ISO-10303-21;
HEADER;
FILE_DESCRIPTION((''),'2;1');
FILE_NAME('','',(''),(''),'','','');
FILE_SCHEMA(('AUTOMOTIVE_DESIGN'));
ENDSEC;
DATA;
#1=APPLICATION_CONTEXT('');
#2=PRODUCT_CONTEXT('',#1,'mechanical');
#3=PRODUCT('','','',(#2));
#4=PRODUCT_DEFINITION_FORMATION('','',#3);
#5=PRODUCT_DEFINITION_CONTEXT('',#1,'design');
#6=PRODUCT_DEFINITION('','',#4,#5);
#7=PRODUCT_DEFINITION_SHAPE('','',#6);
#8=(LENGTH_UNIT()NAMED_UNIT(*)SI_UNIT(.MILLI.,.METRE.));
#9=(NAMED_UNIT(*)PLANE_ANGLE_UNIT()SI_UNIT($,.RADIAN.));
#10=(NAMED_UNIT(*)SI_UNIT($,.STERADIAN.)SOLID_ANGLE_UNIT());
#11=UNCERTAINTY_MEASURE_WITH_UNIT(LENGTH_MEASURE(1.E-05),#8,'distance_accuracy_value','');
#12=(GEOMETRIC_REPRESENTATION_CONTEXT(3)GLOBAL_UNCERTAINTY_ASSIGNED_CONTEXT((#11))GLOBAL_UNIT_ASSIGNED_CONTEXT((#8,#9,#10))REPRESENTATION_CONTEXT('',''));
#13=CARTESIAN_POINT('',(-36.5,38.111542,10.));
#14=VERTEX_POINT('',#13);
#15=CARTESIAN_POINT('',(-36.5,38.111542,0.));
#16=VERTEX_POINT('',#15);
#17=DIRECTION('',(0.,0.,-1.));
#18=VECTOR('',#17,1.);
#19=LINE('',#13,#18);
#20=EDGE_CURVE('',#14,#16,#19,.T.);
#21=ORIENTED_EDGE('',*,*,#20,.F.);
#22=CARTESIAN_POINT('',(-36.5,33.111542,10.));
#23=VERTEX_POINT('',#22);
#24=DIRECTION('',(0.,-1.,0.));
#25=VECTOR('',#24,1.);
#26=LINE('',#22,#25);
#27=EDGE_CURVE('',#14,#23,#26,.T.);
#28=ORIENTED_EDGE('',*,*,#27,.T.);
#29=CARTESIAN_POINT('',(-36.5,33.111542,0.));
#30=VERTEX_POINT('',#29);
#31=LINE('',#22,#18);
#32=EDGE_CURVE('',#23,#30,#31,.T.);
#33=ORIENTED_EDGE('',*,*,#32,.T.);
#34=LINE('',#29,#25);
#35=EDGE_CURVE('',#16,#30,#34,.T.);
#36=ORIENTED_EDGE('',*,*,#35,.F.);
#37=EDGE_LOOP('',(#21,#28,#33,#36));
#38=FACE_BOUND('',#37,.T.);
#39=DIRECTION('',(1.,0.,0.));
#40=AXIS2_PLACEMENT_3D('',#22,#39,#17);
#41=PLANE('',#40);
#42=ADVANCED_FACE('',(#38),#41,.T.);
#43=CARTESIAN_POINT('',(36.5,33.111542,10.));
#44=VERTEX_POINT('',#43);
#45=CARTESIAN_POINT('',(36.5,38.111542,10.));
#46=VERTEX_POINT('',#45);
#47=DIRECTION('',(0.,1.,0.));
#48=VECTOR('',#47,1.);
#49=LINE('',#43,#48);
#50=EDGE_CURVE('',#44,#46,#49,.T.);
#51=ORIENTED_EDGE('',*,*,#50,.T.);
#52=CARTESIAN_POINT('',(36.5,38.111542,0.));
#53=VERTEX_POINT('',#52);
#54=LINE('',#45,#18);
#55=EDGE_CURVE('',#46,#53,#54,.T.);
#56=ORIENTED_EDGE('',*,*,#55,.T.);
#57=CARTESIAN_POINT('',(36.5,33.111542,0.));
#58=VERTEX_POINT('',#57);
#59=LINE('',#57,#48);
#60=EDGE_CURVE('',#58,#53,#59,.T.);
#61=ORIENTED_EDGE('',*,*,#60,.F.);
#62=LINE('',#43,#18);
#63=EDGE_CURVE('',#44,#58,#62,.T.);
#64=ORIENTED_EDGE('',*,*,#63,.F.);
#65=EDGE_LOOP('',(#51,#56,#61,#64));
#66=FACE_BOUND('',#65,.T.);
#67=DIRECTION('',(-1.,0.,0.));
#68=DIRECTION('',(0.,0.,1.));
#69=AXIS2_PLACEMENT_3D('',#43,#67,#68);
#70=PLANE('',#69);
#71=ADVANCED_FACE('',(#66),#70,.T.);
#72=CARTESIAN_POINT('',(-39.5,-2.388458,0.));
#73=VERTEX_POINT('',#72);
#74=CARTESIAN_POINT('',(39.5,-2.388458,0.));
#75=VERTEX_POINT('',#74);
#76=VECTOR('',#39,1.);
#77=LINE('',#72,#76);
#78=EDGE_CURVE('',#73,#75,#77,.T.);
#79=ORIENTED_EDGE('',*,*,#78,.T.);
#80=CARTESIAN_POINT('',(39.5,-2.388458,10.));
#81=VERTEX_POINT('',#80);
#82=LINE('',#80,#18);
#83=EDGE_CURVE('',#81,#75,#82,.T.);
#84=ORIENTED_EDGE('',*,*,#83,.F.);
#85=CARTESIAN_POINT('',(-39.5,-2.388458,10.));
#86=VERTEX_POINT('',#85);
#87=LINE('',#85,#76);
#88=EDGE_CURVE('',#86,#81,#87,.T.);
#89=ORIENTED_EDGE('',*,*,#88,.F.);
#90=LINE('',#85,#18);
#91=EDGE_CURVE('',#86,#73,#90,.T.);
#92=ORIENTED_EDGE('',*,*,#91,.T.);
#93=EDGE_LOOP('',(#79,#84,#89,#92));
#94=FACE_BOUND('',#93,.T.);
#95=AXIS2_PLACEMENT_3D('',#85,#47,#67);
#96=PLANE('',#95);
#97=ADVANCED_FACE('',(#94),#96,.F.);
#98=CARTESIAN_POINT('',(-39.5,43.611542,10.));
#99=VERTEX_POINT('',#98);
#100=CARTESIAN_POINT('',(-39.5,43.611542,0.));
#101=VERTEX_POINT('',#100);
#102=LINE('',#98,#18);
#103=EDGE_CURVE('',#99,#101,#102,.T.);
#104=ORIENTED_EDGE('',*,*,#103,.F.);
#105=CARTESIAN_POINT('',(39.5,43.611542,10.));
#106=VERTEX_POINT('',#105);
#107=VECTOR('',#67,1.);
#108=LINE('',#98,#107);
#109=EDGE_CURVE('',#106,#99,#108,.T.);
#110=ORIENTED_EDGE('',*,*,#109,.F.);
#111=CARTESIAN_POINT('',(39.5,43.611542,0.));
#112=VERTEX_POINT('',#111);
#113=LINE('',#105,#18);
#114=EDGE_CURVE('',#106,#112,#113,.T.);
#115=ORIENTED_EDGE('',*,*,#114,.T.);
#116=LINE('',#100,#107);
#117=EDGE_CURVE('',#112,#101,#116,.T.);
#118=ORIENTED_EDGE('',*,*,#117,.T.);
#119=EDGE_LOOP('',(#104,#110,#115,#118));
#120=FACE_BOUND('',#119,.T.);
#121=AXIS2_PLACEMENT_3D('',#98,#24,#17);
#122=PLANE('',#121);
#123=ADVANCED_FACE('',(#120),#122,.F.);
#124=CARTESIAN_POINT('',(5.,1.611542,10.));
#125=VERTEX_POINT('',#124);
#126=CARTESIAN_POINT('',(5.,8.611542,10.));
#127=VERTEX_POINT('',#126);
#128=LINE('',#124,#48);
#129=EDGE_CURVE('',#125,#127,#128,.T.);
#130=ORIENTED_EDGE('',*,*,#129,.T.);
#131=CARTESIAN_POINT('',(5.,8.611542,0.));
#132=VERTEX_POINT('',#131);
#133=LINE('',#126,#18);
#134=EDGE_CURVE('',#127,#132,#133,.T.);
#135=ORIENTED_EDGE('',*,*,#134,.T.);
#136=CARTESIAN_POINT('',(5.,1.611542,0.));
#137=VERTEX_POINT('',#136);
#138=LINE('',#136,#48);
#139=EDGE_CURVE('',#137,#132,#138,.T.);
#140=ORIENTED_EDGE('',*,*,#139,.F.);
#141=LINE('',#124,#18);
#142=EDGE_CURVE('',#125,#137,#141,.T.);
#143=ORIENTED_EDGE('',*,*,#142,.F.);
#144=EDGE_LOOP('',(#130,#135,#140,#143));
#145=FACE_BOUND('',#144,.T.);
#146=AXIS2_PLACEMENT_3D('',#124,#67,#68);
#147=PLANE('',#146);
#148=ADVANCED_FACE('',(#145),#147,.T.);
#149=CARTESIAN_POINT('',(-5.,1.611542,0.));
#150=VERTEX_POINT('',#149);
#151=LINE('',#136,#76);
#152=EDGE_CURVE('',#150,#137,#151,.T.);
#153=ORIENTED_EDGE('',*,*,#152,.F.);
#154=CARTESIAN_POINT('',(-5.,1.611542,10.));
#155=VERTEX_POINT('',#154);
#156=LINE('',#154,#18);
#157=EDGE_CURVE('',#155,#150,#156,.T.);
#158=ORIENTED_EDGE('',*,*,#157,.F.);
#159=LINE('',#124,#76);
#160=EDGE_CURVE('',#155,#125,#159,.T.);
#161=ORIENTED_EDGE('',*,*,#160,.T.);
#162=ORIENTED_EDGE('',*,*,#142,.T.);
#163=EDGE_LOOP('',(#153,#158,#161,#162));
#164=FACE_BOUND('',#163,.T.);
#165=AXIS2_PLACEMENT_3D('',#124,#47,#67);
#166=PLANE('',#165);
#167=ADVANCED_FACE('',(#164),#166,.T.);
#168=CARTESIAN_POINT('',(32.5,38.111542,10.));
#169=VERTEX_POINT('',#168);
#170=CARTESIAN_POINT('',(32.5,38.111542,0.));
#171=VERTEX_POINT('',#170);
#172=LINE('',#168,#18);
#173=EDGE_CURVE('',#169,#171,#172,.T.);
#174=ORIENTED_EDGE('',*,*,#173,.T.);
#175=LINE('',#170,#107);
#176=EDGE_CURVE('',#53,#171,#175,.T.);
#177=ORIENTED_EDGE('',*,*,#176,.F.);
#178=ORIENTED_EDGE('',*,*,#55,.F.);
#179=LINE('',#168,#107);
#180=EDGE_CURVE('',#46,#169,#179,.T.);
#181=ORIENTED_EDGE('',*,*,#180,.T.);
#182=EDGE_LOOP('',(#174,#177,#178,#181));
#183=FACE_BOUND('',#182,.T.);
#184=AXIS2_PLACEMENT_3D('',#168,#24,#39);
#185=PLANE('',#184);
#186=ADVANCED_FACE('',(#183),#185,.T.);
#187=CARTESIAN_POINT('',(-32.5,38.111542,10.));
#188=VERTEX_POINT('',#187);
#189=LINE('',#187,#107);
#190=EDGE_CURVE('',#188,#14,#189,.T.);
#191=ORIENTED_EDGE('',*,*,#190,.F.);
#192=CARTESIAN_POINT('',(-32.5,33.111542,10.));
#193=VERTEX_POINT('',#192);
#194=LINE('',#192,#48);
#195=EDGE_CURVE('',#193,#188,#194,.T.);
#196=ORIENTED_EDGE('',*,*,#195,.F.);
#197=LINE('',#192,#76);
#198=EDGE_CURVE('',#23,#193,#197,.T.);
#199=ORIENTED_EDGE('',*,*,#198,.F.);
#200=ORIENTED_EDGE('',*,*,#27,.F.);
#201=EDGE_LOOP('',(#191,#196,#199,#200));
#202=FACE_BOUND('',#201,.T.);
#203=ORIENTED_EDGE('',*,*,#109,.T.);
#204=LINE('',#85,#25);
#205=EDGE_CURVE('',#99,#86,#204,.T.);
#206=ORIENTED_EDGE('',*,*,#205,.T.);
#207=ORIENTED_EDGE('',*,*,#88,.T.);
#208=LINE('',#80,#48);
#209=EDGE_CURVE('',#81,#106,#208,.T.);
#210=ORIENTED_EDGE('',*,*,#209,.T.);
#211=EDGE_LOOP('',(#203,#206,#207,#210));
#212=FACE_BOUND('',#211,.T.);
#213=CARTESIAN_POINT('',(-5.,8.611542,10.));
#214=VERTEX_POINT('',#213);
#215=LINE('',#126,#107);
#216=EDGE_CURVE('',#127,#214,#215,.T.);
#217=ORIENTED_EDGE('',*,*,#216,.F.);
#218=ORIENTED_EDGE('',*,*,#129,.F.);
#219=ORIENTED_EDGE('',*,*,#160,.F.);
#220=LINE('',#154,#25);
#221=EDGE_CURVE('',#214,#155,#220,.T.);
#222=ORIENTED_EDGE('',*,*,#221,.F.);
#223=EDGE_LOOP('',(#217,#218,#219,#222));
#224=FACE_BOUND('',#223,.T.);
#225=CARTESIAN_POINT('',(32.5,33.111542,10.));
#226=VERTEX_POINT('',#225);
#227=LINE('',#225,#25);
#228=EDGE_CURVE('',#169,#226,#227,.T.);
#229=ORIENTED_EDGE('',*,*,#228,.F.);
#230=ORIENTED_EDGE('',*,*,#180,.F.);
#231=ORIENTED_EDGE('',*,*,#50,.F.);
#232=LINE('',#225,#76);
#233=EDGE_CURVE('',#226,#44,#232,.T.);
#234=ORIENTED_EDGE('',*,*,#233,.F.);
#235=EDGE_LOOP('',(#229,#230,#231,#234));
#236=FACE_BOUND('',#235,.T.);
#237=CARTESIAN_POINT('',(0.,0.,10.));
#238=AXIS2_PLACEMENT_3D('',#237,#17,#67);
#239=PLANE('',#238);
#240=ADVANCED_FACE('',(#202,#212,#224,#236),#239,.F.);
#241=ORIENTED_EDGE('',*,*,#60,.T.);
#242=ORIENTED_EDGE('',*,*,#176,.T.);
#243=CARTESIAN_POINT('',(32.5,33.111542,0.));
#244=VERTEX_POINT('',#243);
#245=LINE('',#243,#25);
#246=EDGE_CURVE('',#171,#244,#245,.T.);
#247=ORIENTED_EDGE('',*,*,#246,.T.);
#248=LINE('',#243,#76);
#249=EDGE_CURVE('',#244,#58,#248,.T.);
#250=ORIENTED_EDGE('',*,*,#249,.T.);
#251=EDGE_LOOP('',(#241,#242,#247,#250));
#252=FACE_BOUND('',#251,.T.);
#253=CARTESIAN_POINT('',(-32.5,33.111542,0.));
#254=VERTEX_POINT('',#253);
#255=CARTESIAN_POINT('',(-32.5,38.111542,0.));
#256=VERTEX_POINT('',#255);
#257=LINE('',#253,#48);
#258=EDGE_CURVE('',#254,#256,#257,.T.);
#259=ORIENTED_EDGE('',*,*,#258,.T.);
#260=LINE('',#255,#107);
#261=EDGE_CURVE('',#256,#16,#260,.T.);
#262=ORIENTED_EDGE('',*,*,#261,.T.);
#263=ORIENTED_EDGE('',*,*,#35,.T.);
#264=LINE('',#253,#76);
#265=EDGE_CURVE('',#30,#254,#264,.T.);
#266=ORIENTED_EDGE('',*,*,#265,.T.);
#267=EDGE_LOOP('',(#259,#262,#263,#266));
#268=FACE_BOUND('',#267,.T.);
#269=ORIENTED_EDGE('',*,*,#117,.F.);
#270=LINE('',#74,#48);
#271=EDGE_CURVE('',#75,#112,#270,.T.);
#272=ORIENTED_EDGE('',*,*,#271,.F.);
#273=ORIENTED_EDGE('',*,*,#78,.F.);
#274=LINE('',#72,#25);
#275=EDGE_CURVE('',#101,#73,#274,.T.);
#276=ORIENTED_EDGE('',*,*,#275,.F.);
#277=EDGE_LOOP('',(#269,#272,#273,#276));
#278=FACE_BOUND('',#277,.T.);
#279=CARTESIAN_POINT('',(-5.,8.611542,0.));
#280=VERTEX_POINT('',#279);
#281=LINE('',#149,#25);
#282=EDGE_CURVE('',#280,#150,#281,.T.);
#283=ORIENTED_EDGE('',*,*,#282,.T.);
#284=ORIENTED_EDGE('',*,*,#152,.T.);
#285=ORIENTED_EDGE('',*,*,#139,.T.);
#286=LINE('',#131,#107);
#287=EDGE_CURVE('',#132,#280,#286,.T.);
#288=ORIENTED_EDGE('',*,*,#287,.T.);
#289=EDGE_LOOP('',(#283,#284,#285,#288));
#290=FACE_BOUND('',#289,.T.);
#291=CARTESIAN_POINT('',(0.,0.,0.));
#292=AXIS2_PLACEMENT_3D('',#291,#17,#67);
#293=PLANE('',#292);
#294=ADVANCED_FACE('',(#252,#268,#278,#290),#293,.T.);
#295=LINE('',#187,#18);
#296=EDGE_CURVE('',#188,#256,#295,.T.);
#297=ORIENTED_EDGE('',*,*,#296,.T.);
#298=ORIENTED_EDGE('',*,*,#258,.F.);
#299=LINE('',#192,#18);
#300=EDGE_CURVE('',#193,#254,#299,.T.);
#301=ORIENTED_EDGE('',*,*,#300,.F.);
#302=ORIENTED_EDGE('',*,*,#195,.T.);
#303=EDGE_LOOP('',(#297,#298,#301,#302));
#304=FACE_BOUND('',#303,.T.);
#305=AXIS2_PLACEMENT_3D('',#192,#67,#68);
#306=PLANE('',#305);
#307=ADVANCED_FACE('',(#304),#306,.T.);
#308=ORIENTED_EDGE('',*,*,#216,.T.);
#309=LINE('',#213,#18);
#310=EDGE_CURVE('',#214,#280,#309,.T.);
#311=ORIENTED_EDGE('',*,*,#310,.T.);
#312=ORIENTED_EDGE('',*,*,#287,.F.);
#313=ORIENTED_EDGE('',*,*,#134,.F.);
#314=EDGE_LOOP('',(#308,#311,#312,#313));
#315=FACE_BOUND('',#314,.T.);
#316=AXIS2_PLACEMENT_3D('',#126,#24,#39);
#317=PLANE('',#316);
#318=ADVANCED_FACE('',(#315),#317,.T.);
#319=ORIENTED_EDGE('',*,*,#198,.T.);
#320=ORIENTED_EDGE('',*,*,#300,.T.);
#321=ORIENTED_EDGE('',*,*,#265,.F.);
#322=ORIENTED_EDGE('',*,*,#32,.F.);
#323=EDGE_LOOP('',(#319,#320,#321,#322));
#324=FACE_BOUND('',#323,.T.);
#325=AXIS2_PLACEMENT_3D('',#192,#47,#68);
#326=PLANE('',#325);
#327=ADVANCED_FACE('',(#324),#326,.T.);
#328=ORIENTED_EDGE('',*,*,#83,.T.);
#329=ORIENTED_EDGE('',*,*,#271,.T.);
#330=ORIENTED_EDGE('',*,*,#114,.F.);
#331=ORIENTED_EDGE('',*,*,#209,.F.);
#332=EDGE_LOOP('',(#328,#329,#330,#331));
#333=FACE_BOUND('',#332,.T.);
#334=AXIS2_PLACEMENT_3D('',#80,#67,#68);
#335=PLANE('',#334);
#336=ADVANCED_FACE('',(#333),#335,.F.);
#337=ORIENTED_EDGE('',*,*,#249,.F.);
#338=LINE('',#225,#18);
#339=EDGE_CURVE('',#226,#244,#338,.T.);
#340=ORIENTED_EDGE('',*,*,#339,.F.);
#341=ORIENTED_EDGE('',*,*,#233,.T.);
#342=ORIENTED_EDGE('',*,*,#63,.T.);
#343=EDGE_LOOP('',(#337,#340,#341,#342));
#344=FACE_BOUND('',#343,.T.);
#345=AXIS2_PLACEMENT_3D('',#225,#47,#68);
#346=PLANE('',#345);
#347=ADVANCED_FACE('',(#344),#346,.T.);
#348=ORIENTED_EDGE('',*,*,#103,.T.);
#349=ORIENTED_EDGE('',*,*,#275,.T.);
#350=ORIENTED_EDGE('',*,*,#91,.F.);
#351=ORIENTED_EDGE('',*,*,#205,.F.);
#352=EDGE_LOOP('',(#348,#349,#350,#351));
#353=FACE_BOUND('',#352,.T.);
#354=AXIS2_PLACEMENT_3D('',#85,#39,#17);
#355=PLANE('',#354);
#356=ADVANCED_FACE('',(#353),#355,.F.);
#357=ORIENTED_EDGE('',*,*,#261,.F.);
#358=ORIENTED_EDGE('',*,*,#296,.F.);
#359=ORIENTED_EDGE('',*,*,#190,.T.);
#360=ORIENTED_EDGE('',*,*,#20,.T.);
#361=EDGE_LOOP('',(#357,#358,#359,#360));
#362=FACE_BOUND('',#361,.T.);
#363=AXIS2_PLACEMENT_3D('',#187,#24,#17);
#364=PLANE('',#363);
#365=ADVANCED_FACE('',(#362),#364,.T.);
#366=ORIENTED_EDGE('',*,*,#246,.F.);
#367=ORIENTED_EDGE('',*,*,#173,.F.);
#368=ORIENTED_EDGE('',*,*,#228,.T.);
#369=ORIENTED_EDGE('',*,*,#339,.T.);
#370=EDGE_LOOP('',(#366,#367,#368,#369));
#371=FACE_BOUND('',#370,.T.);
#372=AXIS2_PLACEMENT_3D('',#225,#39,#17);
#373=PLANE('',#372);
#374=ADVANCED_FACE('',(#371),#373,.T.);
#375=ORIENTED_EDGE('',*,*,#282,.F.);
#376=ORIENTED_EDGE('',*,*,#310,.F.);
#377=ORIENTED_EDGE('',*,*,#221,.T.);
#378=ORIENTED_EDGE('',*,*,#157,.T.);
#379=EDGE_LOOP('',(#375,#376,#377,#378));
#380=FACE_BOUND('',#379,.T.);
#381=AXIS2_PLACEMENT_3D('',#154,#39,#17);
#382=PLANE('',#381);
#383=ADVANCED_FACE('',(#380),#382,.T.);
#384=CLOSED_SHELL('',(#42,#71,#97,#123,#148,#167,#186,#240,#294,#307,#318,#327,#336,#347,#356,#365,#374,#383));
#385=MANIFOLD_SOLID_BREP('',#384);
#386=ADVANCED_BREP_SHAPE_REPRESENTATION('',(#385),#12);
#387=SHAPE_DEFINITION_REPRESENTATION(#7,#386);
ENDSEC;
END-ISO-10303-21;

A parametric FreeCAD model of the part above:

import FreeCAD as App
import Part
import Sketcher
Q = App.Units.Quantity

doc = App.newDocument("Part")
params = doc.addObject("Spreadsheet::Sheet", "Params")
for row, (alias, value) in enumerate([
    ("sketch1_width", "79 mm"),
    ("sketch1_width2", "10 mm"),
    ("sketch1_width3", "4 mm"),
    ("sketch1_height", "46 mm"),
    ("sketch1_height2", "7 mm"),
    ("pad1_length", "10 mm"),
], start=1):
    params.set(f"A{row}", alias)
    params.set(f"B{row}", "=" + value)
    params.setAlias(f"B{row}", alias)

body = doc.addObject("PartDesign::Body", "Body")

sketch1 = body.newObject("Sketcher::SketchObject", "Sketch")
sketch1.AttachmentSupport = (doc.getObject("XY_Plane"), [""])
sketch1.MapMode = "FlatFace"
sketch1.addGeometry(Part.LineSegment(App.Vector(-39.5, 43.6, 0), App.Vector(-39.5, -2.4, 0)), False)
sketch1.addGeometry(Part.LineSegment(App.Vector(-39.5, -2.4, 0), App.Vector(39.5, -2.4, 0)), False)
sketch1.addGeometry(Part.LineSegment(App.Vector(39.5, -2.4, 0), App.Vector(39.5, 43.6, 0)), False)
sketch1.addGeometry(Part.LineSegment(App.Vector(39.5, 43.6, 0), App.Vector(-39.5, 43.6, 0)), False)
sketch1.addGeometry(Part.LineSegment(App.Vector(5, 1.6, 0), App.Vector(-5, 1.6, 0)), False)
sketch1.addGeometry(Part.LineSegment(App.Vector(-5, 1.6, 0), App.Vector(-5, 8.6, 0)), False)
sketch1.addGeometry(Part.LineSegment(App.Vector(-5, 8.6, 0), App.Vector(5, 8.6, 0)), False)
sketch1.addGeometry(Part.LineSegment(App.Vector(5, 8.6, 0), App.Vector(5, 1.6, 0)), False)
sketch1.addGeometry(Part.LineSegment(App.Vector(-32.5, 33.1, 0), App.Vector(-36.5, 33.1, 0)), False)
sketch1.addGeometry(Part.LineSegment(App.Vector(-36.5, 33.1, 0), App.Vector(-36.5, 38.1, 0)), False)
sketch1.addGeometry(Part.LineSegment(App.Vector(-36.5, 38.1, 0), App.Vector(-32.5, 38.1, 0)), False)
sketch1.addGeometry(Part.LineSegment(App.Vector(-32.5, 38.1, 0), App.Vector(-32.5, 33.1, 0)), False)
sketch1.addGeometry(Part.LineSegment(App.Vector(36.5, 33.1, 0), App.Vector(32.5, 33.1, 0)), False)
sketch1.addGeometry(Part.LineSegment(App.Vector(32.5, 33.1, 0), App.Vector(32.5, 38.1, 0)), False)
sketch1.addGeometry(Part.LineSegment(App.Vector(32.5, 38.1, 0), App.Vector(36.5, 38.1, 0)), False)
sketch1.addGeometry(Part.LineSegment(App.Vector(36.5, 38.1, 0), App.Vector(36.5, 33.1, 0)), False)
sketch1.addConstraint(Sketcher.Constraint("Coincident", 0, 2, 1, 1))
sketch1.addConstraint(Sketcher.Constraint("Coincident", 1, 2, 2, 1))
sketch1.addConstraint(Sketcher.Constraint("Coincident", 2, 2, 3, 1))
sketch1.addConstraint(Sketcher.Constraint("Coincident", 3, 2, 0, 1))
sketch1.addConstraint(Sketcher.Constraint("Coincident", 4, 2, 5, 1))
sketch1.addConstraint(Sketcher.Constraint("Coincident", 5, 2, 6, 1))
sketch1.addConstraint(Sketcher.Constraint("Coincident", 6, 2, 7, 1))
sketch1.addConstraint(Sketcher.Constraint("Coincident", 7, 2, 4, 1))
sketch1.addConstraint(Sketcher.Constraint("Coincident", 8, 2, 9, 1))
sketch1.addConstraint(Sketcher.Constraint("Coincident", 9, 2, 10, 1))
sketch1.addConstraint(Sketcher.Constraint("Coincident", 10, 2, 11, 1))
sketch1.addConstraint(Sketcher.Constraint("Coincident", 11, 2, 8, 1))
sketch1.addConstraint(Sketcher.Constraint("Coincident", 12, 2, 13, 1))
sketch1.addConstraint(Sketcher.Constraint("Coincident", 13, 2, 14, 1))
sketch1.addConstraint(Sketcher.Constraint("Coincident", 14, 2, 15, 1))
sketch1.addConstraint(Sketcher.Constraint("Coincident", 15, 2, 12, 1))
sketch1.addConstraint(Sketcher.Constraint("Vertical", 0))
sketch1.addConstraint(Sketcher.Constraint("Horizontal", 1))
sketch1.addConstraint(Sketcher.Constraint("Vertical", 2))
sketch1.addConstraint(Sketcher.Constraint("Horizontal", 3))
sketch1.addConstraint(Sketcher.Constraint("Horizontal", 4))
sketch1.addConstraint(Sketcher.Constraint("Vertical", 5))
sketch1.addConstraint(Sketcher.Constraint("Horizontal", 6))
sketch1.addConstraint(Sketcher.Constraint("Vertical", 7))
sketch1.addConstraint(Sketcher.Constraint("Horizontal", 8))
sketch1.addConstraint(Sketcher.Constraint("Vertical", 9))
sketch1.addConstraint(Sketcher.Constraint("Horizontal", 10))
sketch1.addConstraint(Sketcher.Constraint("Vertical", 11))
sketch1.addConstraint(Sketcher.Constraint("Horizontal", 12))
sketch1.addConstraint(Sketcher.Constraint("Vertical", 13))
sketch1.addConstraint(Sketcher.Constraint("Horizontal", 14))
sketch1.addConstraint(Sketcher.Constraint("Vertical", 15))
sketch1.addConstraint(Sketcher.Constraint("Symmetric", 11, 2, 12, 2, -2))
sketch1.addConstraint(Sketcher.Constraint("Symmetric", 9, 2, 14, 2, -2))
sketch1.addConstraint(Sketcher.Constraint("DistanceX", 1, 1, 1, 2, Q("79 mm")))
sketch1.addConstraint(Sketcher.Constraint("DistanceX", 4, 2, 4, 1, Q("10 mm")))
sketch1.addConstraint(Sketcher.Constraint("DistanceX", 8, 2, 8, 1, Q("4 mm")))
sketch1.addConstraint(Sketcher.Constraint("DistanceY", 0, 2, 0, 1, Q("46 mm")))
sketch1.addConstraint(Sketcher.Constraint("DistanceY", 5, 1, 5, 2, Q("7 mm")))
sketch1.addConstraint(Sketcher.Constraint("DistanceY", 9, 1, 9, 2, Q("5 mm")))
sketch1.addConstraint(Sketcher.Constraint("DistanceX", 4, 2, -1, 1, Q("5 mm")))
sketch1.addConstraint(Sketcher.Constraint("DistanceY", 0, 2, 4, 2, Q("4 mm")))
sketch1.addConstraint(Sketcher.Constraint("DistanceX", 3, 2, 8, 2, Q("3 mm")))
sketch1.addConstraint(Sketcher.Constraint("DistanceX", 12, 2, 2, 2, Q("7 mm")))
sketch1.addConstraint(Sketcher.Constraint("DistanceY", 8, 2, 3, 2, Q("10.5 mm")))
sketch1.addConstraint(Sketcher.Constraint("DistanceY", 0, 2, -1, 1, Q("2.388458 mm")))
sketch1.setExpression("Constraints[34]", "Params.sketch1_width")
sketch1.setExpression("Constraints[35]", "Params.sketch1_width2")
sketch1.setExpression("Constraints[36]", "Params.sketch1_width3")
sketch1.setExpression("Constraints[37]", "Params.sketch1_height")
sketch1.setExpression("Constraints[38]", "Params.sketch1_height2")
pad1 = body.newObject("PartDesign::Pad", "Pad")
pad1.Profile = sketch1
pad1.setExpression("Length", "Params.pad1_length")

doc.recompute()
